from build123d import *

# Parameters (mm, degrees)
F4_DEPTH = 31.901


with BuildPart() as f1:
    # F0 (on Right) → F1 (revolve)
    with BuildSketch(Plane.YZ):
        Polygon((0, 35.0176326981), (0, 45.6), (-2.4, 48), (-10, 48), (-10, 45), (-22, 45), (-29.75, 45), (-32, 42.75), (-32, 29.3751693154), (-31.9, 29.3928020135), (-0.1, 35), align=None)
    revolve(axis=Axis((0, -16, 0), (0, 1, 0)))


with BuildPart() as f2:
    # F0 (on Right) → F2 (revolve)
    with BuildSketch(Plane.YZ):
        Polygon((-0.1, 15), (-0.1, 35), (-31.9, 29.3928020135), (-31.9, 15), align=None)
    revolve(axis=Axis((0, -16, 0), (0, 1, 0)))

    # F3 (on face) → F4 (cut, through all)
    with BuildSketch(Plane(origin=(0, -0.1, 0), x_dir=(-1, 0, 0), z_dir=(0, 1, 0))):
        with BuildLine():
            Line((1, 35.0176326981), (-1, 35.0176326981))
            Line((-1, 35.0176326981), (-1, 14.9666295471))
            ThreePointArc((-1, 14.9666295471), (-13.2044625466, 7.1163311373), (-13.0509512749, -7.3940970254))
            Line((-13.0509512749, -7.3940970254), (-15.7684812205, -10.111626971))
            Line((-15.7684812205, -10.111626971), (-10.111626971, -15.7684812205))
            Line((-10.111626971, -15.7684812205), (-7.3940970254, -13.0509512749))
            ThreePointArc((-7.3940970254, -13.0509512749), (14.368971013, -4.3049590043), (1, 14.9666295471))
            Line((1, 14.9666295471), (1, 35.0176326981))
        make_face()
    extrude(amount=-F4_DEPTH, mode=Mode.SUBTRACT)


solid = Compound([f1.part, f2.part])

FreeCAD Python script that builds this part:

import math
import FreeCAD as App
import Part
import Sketcher
from FreeCAD import Vector
Q = App.Units.Quantity

doc = App.newDocument("Part")
body = doc.addObject("PartDesign::Body", "Body")

sketch1 = doc.addObject("Sketcher::SketchObject", "Sketch")
body.addObject(sketch1)
sketch1.AttachmentSupport = (doc.YZ_Plane, [""])
sketch1.MapMode = "FlatFace"
sketch1.addGeometry([
    Part.LineSegment(Vector(0, 35.017633, 0), Vector(0, 45.6, 0)),
    Part.LineSegment(Vector(0, 45.6, 0), Vector(-2.4, 48, 0)),
    Part.LineSegment(Vector(-2.4, 48, 0), Vector(-10, 48, 0)),
    Part.LineSegment(Vector(-10, 48, 0), Vector(-10, 45, 0)),
    Part.LineSegment(Vector(-10, 45, 0), Vector(-29.75, 45, 0)),
    Part.LineSegment(Vector(-29.75, 45, 0), Vector(-32, 42.75, 0)),
    Part.LineSegment(Vector(-32, 42.75, 0), Vector(-32, 29.375169, 0)),
    Part.LineSegment(Vector(-32, 29.375169, 0), Vector(-31.9, 29.392802, 0)),
    Part.LineSegment(Vector(-31.9, 29.392802, 0), Vector(-0.1, 35, 0)),
    Part.LineSegment(Vector(-0.1, 35, 0), Vector(0, 35.017633, 0)),
], False)
sketch1.addConstraint([
    Sketcher.Constraint("Coincident", 0, 2, 1, 1),
    Sketcher.Constraint("Coincident", 1, 2, 2, 1),
    Sketcher.Constraint("Coincident", 2, 2, 3, 1),
    Sketcher.Constraint("Coincident", 3, 2, 4, 1),
    Sketcher.Constraint("Coincident", 4, 2, 5, 1),
    Sketcher.Constraint("Coincident", 5, 2, 6, 1),
    Sketcher.Constraint("Coincident", 6, 2, 7, 1),
    Sketcher.Constraint("Coincident", 7, 2, 8, 1),
    Sketcher.Constraint("Coincident", 8, 2, 9, 1),
    Sketcher.Constraint("Coincident", 9, 2, 0, 1),
    Sketcher.Constraint("Vertical", 0),
    Sketcher.Constraint("Horizontal", 2),
    Sketcher.Constraint("Vertical", 3),
    Sketcher.Constraint("Horizontal", 4),
    Sketcher.Constraint("Vertical", 6),
    Sketcher.Constraint("PointOnObject", 0, 2, -2),
    Sketcher.Constraint("Perpendicular", 1, 5),
    Sketcher.Constraint("Parallel", 7, 8),
    Sketcher.Constraint("Parallel", 8, 9),
    Sketcher.Constraint("Equal", 7, 9),
    Sketcher.Constraint("DistanceY", 3, 2, 3, 1, Q("3 mm")),
    Sketcher.Constraint("Angle", 1, Q("135 deg")),
    Sketcher.Constraint("Angle", 8, Q("10 deg")),
    Sketcher.Constraint("DistanceX", 2, 2, 2, 1, Q("7.6 mm")),
    Sketcher.Constraint("DistanceY", -1, 1, 1, 2, Q("48 mm")),
    Sketcher.Constraint("DistanceX", 2, 2, -1, 1, Q("10 mm")),
    Sketcher.Constraint("DistanceX", 5, 2, -1, 1, Q("32 mm")),
    Sketcher.Constraint("DistanceY", -1, 1, 8, 2, Q("35 mm")),
    Sketcher.Constraint("DistanceX", 4, 2, 4, 1, Q("19.75 mm")),
    Sketcher.Constraint("DistanceX", 7, 2, -1, 1, Q("31.9 mm")),
])
revolution = doc.addObject("PartDesign::Revolution", "Revolution")
body.addObject(revolution)
revolution.Profile = sketch1
revolution.ReferenceAxis = (sketch1, ["H_Axis"])
revolution.Angle = 360
body2 = doc.addObject("PartDesign::Body", "Body001")

sketch2 = doc.addObject("Sketcher::SketchObject", "Sketch001")
body2.addObject(sketch2)
sketch2.AttachmentSupport = (doc.getObject("YZ_Plane001"), [""])
sketch2.MapMode = "FlatFace"
sketch2.addGeometry([
    Part.LineSegment(Vector(-0.1, 15, 0), Vector(-0.1, 35, 0)),
    Part.LineSegment(Vector(-0.1, 35, 0), Vector(-31.9, 29.392802, 0)),
    Part.LineSegment(Vector(-31.9, 29.392802, 0), Vector(-31.9, 15, 0)),
    Part.LineSegment(Vector(-31.9, 15, 0), Vector(-0.1, 15, 0)),
], False)
sketch2.addConstraint([
    Sketcher.Constraint("Coincident", 0, 2, 1, 1),
    Sketcher.Constraint("Coincident", 1, 2, 2, 1),
    Sketcher.Constraint("Coincident", 2, 2, 3, 1),
    Sketcher.Constraint("Coincident", 3, 2, 0, 1),
    Sketcher.Constraint("Vertical", 0),
    Sketcher.Constraint("Vertical", 2),
    Sketcher.Constraint("Horizontal", 3),
    Sketcher.Constraint("DistanceY", 0, 1, 0, 2, Q("20 mm")),
    Sketcher.Constraint("Angle", 1, Q("-170 deg")),
    Sketcher.Constraint("DistanceX", 3, 1, 3, 2, Q("31.8 mm")),
    Sketcher.Constraint("DistanceY", -1, 1, 0, 2, Q("35 mm")),
    Sketcher.Constraint("DistanceX", 0, 2, -1, 1, Q("0.1 mm")),
])
revolution2 = doc.addObject("PartDesign::Revolution", "Revolution001")
body2.addObject(revolution2)
revolution2.Profile = sketch2
revolution2.ReferenceAxis = (sketch2, ["H_Axis"])
revolution2.Angle = 360

sketch3 = doc.addObject("Sketcher::SketchObject", "Sketch002")
body2.addObject(sketch3)
sketch3.AttachmentSupport = (doc.getObject("XZ_Plane001"), [""])
sketch3.MapMode = "FlatFace"
sketch3.AttachmentOffset = App.Placement(Vector(0, 0, 0.1), App.Rotation())
sketch3.addGeometry([
    Part.LineSegment(Vector(-1, 35.017633, 0), Vector(1, 35.017633, 0)),
    Part.LineSegment(Vector(1, 35.017633, 0), Vector(1, 14.96663, 0)),
    Part.ArcOfCircle(Part.Circle(Vector(0, 0, 0), Vector(0, 0, 1), 15), math.radians(-29.53399), math.radians(86.177446)),
    Part.LineSegment(Vector(13.050951, -7.394097, 0), Vector(15.768481, -10.111627, 0)),
    Part.LineSegment(Vector(15.768481, -10.111627, 0), Vector(10.111627, -15.768481, 0)),
    Part.LineSegment(Vector(10.111627, -15.768481, 0), Vector(7.394097, -13.050951, 0)),
    Part.ArcOfCircle(Part.Circle(Vector(0, 0, 0), Vector(0, 0, 1), 15), math.radians(93.822554), math.radians(299.53399)),
    Part.LineSegment(Vector(-1, 14.96663, 0), Vector(-1, 35.017633, 0)),
], False)
sketch3.addConstraint([
    Sketcher.Constraint("Coincident", 0, 2, 1, 1),
    Sketcher.Constraint("Coincident", 1, 2, 2, 2),
    Sketcher.Constraint("Coincident", 2, 1, 3, 1),
    Sketcher.Constraint("Coincident", 3, 2, 4, 1),
    Sketcher.Constraint("Coincident", 4, 2, 5, 1),
    Sketcher.Constraint("Coincident", 5, 2, 6, 2),
    Sketcher.Constraint("Coincident", 6, 1, 7, 1),
    Sketcher.Constraint("Coincident", 7, 2, 0, 1),
    Sketcher.Constraint("Horizontal", 0),
    Sketcher.Constraint("Vertical", 1),
    Sketcher.Constraint("Vertical", 7),
    Sketcher.Constraint("Coincident", 2, 3, -1, 1),
    Sketcher.Constraint("Coincident", 6, 3, -1, 1),
    Sketcher.Constraint("Equal", 2, 6),
    Sketcher.Constraint("Perpendicular", 3, 4),
    Sketcher.Constraint("Perpendicular", 4, 5),
    Sketcher.Constraint("Horizontal", 1, 2, 6, 1),
    Sketcher.Constraint("Equal", 3, 5),
    Sketcher.Constraint("Radius", 2, Q("15 mm")),
    Sketcher.Constraint("DistanceX", 0, 1, 0, 2, Q("2 mm")),
    Sketcher.Constraint("Angle", 3, Q("-45 deg")),
    Sketcher.Constraint("Distance", 4, Q("8 mm")),
    Sketcher.Constraint("DistanceY", 1, 2, 1, 1, Q("20.051003 mm")),
    Sketcher.Constraint("DistanceX", -1, 1, 3, 2, Q("15.768481 mm")),
])
pocket1 = doc.addObject("PartDesign::Pocket", "Pocket")
body2.addObject(pocket1)
pocket1.Profile = sketch3
pocket1.Type = "ThroughAll"
pocket1.Reversed = True

doc.recompute()
